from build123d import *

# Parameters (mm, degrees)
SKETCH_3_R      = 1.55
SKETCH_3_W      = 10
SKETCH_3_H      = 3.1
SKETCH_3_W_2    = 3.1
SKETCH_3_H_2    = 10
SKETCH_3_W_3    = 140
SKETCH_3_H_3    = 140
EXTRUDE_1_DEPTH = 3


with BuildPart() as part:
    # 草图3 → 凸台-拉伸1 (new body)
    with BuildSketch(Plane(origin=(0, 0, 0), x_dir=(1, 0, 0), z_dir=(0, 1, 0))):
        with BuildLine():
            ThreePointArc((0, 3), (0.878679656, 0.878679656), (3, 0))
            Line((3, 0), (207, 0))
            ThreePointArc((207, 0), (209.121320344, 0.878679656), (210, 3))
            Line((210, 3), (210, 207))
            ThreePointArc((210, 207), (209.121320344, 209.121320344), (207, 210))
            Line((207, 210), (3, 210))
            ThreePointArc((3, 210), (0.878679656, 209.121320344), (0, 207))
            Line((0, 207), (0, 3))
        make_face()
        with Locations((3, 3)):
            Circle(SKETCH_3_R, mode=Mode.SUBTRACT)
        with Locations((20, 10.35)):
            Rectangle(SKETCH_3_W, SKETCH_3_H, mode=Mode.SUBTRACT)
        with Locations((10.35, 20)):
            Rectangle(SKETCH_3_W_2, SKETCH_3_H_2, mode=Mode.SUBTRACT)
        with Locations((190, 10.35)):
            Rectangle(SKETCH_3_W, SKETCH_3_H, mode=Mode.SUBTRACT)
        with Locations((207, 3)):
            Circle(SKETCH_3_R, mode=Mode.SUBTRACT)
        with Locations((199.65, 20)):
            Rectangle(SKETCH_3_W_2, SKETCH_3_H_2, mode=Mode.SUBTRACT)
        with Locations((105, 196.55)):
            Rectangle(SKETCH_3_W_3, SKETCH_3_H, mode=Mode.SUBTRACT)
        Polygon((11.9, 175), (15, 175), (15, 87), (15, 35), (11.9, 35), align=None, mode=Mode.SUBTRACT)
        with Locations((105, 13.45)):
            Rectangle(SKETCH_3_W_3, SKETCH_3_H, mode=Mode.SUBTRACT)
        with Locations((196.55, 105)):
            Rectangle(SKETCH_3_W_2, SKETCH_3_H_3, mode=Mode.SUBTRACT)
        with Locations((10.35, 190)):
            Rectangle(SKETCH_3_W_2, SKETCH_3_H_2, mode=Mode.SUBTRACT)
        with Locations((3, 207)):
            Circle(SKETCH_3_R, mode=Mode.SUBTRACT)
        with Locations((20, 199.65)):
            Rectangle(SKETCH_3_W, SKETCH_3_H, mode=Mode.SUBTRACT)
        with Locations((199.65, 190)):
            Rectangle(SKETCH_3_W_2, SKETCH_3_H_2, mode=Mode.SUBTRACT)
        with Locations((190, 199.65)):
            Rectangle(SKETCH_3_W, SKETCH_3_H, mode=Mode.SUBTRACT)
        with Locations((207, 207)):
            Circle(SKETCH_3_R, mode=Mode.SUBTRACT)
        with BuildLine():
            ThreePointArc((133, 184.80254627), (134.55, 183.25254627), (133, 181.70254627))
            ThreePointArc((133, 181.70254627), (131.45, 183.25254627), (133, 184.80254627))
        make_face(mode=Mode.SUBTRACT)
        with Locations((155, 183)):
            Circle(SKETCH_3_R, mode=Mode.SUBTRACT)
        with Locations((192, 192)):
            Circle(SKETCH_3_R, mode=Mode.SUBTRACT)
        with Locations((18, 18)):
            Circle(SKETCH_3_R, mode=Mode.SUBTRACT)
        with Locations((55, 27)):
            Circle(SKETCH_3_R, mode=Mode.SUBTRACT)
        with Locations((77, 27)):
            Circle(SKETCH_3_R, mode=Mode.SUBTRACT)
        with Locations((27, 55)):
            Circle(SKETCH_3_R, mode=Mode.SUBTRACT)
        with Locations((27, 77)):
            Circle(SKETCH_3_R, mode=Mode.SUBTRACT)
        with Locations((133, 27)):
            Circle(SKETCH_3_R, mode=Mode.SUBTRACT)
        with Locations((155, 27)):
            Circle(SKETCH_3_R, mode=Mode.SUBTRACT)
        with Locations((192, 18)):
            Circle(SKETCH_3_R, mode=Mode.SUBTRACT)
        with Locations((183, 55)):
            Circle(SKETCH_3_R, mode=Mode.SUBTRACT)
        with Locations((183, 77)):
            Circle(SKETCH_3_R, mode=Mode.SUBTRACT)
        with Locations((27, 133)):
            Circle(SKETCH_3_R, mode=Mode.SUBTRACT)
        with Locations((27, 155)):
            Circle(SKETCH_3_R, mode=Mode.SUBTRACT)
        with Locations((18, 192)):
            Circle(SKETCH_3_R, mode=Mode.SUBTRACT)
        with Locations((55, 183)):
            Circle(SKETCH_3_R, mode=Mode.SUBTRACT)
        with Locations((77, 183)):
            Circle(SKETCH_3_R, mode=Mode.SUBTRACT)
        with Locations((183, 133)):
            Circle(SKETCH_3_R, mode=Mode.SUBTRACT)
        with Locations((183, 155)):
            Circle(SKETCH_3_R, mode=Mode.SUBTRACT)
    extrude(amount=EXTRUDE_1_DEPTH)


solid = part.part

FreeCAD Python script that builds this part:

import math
import FreeCAD as App
import Part
import Sketcher

V = App.Vector
Q = App.Units.Quantity

doc = App.newDocument("Part")
body = doc.addObject("PartDesign::Body", "Body")

# Sketch on XZ plane
sketch1 = body.newObject("Sketcher::SketchObject", "Sketch")
sketch1.AttachmentSupport = (doc.getObject("XZ_Plane"), [""])
sketch1.MapMode = "FlatFace"
sketch1.addGeometry([
    Part.ArcOfCircle(Part.Circle(V(3, -3, 0), V(0, 0, 1), 3), math.radians(90), math.radians(180)),  # 0
    Part.LineSegment(V(3, 0, 0), V(207, 0, 0)),  # 1
    Part.ArcOfCircle(Part.Circle(V(207, -3, 0), V(0, 0, 1), 3), math.radians(0), math.radians(90)),  # 2
    Part.LineSegment(V(210, -3, 0), V(210, -207, 0)),  # 3
    Part.ArcOfCircle(Part.Circle(V(207, -207, 0), V(0, 0, 1), 3), math.radians(-90), math.radians(0)),  # 4
    Part.LineSegment(V(207, -210, 0), V(3, -210, 0)),  # 5
    Part.ArcOfCircle(Part.Circle(V(3, -207, 0), V(0, 0, 1), 3), math.radians(180), math.radians(270)),  # 6
    Part.LineSegment(V(0, -207, 0), V(0, -3, 0)),  # 7
    Part.Circle(V(3, -3, 0), V(0, 0, 1), 1.6),  # 8
    Part.LineSegment(V(25, -8.8, 0), V(15, -8.8, 0)),  # 9
    Part.LineSegment(V(15, -8.8, 0), V(15, -11.9, 0)),  # 10
    Part.LineSegment(V(15, -11.9, 0), V(25, -11.9, 0)),  # 11
    Part.LineSegment(V(25, -11.9, 0), V(25, -8.8, 0)),  # 12
    Part.LineSegment(V(11.9, -15, 0), V(8.8, -15, 0)),  # 13
    Part.LineSegment(V(8.8, -15, 0), V(8.8, -25, 0)),  # 14
    Part.LineSegment(V(8.8, -25, 0), V(11.9, -25, 0)),  # 15
    Part.LineSegment(V(11.9, -25, 0), V(11.9, -15, 0)),  # 16
    Part.Circle(V(18, -18, 0), V(0, 0, 1), 1.6),  # 17
    Part.Circle(V(55, -27, 0), V(0, 0, 1), 1.6),  # 18
    Part.Circle(V(77, -27, 0), V(0, 0, 1), 1.6),  # 19
    Part.LineSegment(V(175, -11.9, 0), V(35, -11.9, 0)),  # 20
    Part.LineSegment(V(35, -11.9, 0), V(35, -15, 0)),  # 21
    Part.LineSegment(V(35, -15, 0), V(175, -15, 0)),  # 22
    Part.LineSegment(V(175, -15, 0), V(175, -11.9, 0)),  # 23
    Part.Circle(V(27, -55, 0), V(0, 0, 1), 1.6),  # 24
    Part.Circle(V(27, -77, 0), V(0, 0, 1), 1.6),  # 25
    Part.Circle(V(133, -27, 0), V(0, 0, 1), 1.6),  # 26
    Part.Circle(V(155, -27, 0), V(0, 0, 1), 1.6),  # 27
    Part.LineSegment(V(195, -8.8, 0), V(185, -8.8, 0)),  # 28
    Part.LineSegment(V(185, -8.8, 0), V(185, -11.9, 0)),  # 29
    Part.LineSegment(V(185, -11.9, 0), V(195, -11.9, 0)),  # 30
    Part.LineSegment(V(195, -11.9, 0), V(195, -8.8, 0)),  # 31
    Part.Circle(V(207, -3, 0), V(0, 0, 1), 1.6),  # 32
    Part.Circle(V(192, -18, 0), V(0, 0, 1), 1.6),  # 33
    Part.LineSegment(V(201.2, -15, 0), V(198.1, -15, 0)),  # 34
    Part.LineSegment(V(198.1, -15, 0), V(198.1, -25, 0)),  # 35
    Part.LineSegment(V(198.1, -25, 0), V(201.2, -25, 0)),  # 36
    Part.LineSegment(V(201.2, -25, 0), V(201.2, -15, 0)),  # 37
    Part.Circle(V(183, -55, 0), V(0, 0, 1), 1.6),  # 38
    Part.Circle(V(183, -77, 0), V(0, 0, 1), 1.6),  # 39
    Part.LineSegment(V(11.9, -35, 0), V(11.9, -175, 0)),  # 40
    Part.LineSegment(V(11.9, -175, 0), V(15, -175, 0)),  # 41
    Part.LineSegment(V(15, -175, 0), V(15, -35, 0)),  # 42
    Part.LineSegment(V(15, -35, 0), V(11.9, -35, 0)),  # 43
    Part.Circle(V(27, -133, 0), V(0, 0, 1), 1.6),  # 44
    Part.Circle(V(27, -155, 0), V(0, 0, 1), 1.6),  # 45
    Part.LineSegment(V(11.9, -185, 0), V(8.8, -185, 0)),  # 46
    Part.LineSegment(V(8.8, -185, 0), V(8.8, -195, 0)),  # 47
    Part.LineSegment(V(8.8, -195, 0), V(11.9, -195, 0)),  # 48
    Part.LineSegment(V(11.9, -195, 0), V(11.9, -185, 0)),  # 49
    Part.Circle(V(18, -192, 0), V(0, 0, 1), 1.6),  # 50
    Part.Circle(V(3, -207, 0), V(0, 0, 1), 1.6),  # 51
    Part.LineSegment(V(25, -198.1, 0), V(15, -198.1, 0)),  # 52
    Part.LineSegment(V(15, -198.1, 0), V(15, -201.2, 0)),  # 53
    Part.LineSegment(V(15, -201.2, 0), V(25, -201.2, 0)),  # 54
    Part.LineSegment(V(25, -201.2, 0), V(25, -198.1, 0)),  # 55
    Part.Circle(V(55, -183, 0), V(0, 0, 1), 1.6),  # 56
    Part.Circle(V(77, -183, 0), V(0, 0, 1), 1.6),  # 57
    Part.LineSegment(V(175, -195, 0), V(35, -195, 0)),  # 58
    Part.LineSegment(V(35, -195, 0), V(35, -198.1, 0)),  # 59
    Part.LineSegment(V(35, -198.1, 0), V(175, -198.1, 0)),  # 60
    Part.LineSegment(V(175, -198.1, 0), V(175, -195, 0)),  # 61
    Part.LineSegment(V(198.1, -35, 0), V(195, -35, 0)),  # 62
    Part.LineSegment(V(195, -35, 0), V(195, -175, 0)),  # 63
    Part.LineSegment(V(195, -175, 0), V(198.1, -175, 0)),  # 64
    Part.LineSegment(V(198.1, -175, 0), V(198.1, -35, 0)),  # 65
    Part.Circle(V(183, -133, 0), V(0, 0, 1), 1.6),  # 66
    Part.Circle(V(183, -155, 0), V(0, 0, 1), 1.6),  # 67
    Part.Circle(V(133, -183.3, 0), V(0, 0, 1), 1.6),  # 68
    Part.Circle(V(155, -183, 0), V(0, 0, 1), 1.6),  # 69
    Part.Circle(V(192, -192, 0), V(0, 0, 1), 1.6),  # 70
    Part.LineSegment(V(201.2, -185, 0), V(198.1, -185, 0)),  # 71
    Part.LineSegment(V(198.1, -185, 0), V(198.1, -195, 0)),  # 72
    Part.LineSegment(V(198.1, -195, 0), V(201.2, -195, 0)),  # 73
    Part.LineSegment(V(201.2, -195, 0), V(201.2, -185, 0)),  # 74
    Part.LineSegment(V(195, -198.1, 0), V(185, -198.1, 0)),  # 75
    Part.LineSegment(V(185, -198.1, 0), V(185, -201.2, 0)),  # 76
    Part.LineSegment(V(185, -201.2, 0), V(195, -201.2, 0)),  # 77
    Part.LineSegment(V(195, -201.2, 0), V(195, -198.1, 0)),  # 78
    Part.Circle(V(207, -207, 0), V(0, 0, 1), 1.6),  # 79
], False)
sketch1.addConstraint([
    Sketcher.Constraint("Tangent", 0, 1, 1, 1),
    Sketcher.Constraint("Tangent", 1, 2, 2, 2),
    Sketcher.Constraint("Tangent", 2, 1, 3, 1),
    Sketcher.Constraint("Tangent", 3, 2, 4, 2),
    Sketcher.Constraint("Tangent", 4, 1, 5, 1),
    Sketcher.Constraint("Tangent", 5, 2, 6, 2),
    Sketcher.Constraint("Tangent", 6, 1, 7, 1),
    Sketcher.Constraint("Tangent", 7, 2, 0, 2),
    Sketcher.Constraint("Coincident", 9, 2, 10, 1),
    Sketcher.Constraint("Coincident", 10, 2, 11, 1),
    Sketcher.Constraint("Coincident", 11, 2, 12, 1),
    Sketcher.Constraint("Coincident", 12, 2, 9, 1),
    Sketcher.Constraint("Coincident", 13, 2, 14, 1),
    Sketcher.Constraint("Coincident", 14, 2, 15, 1),
    Sketcher.Constraint("Coincident", 15, 2, 16, 1),
    Sketcher.Constraint("Coincident", 16, 2, 13, 1),
    Sketcher.Constraint("Coincident", 20, 2, 21, 1),
    Sketcher.Constraint("Coincident", 21, 2, 22, 1),
    Sketcher.Constraint("Coincident", 22, 2, 23, 1),
    Sketcher.Constraint("Coincident", 23, 2, 20, 1),
    Sketcher.Constraint("Coincident", 28, 2, 29, 1),
    Sketcher.Constraint("Coincident", 29, 2, 30, 1),
    Sketcher.Constraint("Coincident", 30, 2, 31, 1),
    Sketcher.Constraint("Coincident", 31, 2, 28, 1),
    Sketcher.Constraint("Coincident", 34, 2, 35, 1),
    Sketcher.Constraint("Coincident", 35, 2, 36, 1),
    Sketcher.Constraint("Coincident", 36, 2, 37, 1),
    Sketcher.Constraint("Coincident", 37, 2, 34, 1),
    Sketcher.Constraint("Coincident", 40, 2, 41, 1),
    Sketcher.Constraint("Coincident", 41, 2, 42, 1),
    Sketcher.Constraint("Coincident", 42, 2, 43, 1),
    Sketcher.Constraint("Coincident", 43, 2, 40, 1),
    Sketcher.Constraint("Coincident", 46, 2, 47, 1),
    Sketcher.Constraint("Coincident", 47, 2, 48, 1),
    Sketcher.Constraint("Coincident", 48, 2, 49, 1),
    Sketcher.Constraint("Coincident", 49, 2, 46, 1),
    Sketcher.Constraint("Coincident", 52, 2, 53, 1),
    Sketcher.Constraint("Coincident", 53, 2, 54, 1),
    Sketcher.Constraint("Coincident", 54, 2, 55, 1),
    Sketcher.Constraint("Coincident", 55, 2, 52, 1),
    Sketcher.Constraint("Coincident", 58, 2, 59, 1),
    Sketcher.Constraint("Coincident", 59, 2, 60, 1),
    Sketcher.Constraint("Coincident", 60, 2, 61, 1),
    Sketcher.Constraint("Coincident", 61, 2, 58, 1),
    Sketcher.Constraint("Coincident", 62, 2, 63, 1),
    Sketcher.Constraint("Coincident", 63, 2, 64, 1),
    Sketcher.Constraint("Coincident", 64, 2, 65, 1),
    Sketcher.Constraint("Coincident", 65, 2, 62, 1),
    Sketcher.Constraint("Coincident", 71, 2, 72, 1),
    Sketcher.Constraint("Coincident", 72, 2, 73, 1),
    Sketcher.Constraint("Coincident", 73, 2, 74, 1),
    Sketcher.Constraint("Coincident", 74, 2, 71, 1),
    Sketcher.Constraint("Coincident", 75, 2, 76, 1),
    Sketcher.Constraint("Coincident", 76, 2, 77, 1),
    Sketcher.Constraint("Coincident", 77, 2, 78, 1),
    Sketcher.Constraint("Coincident", 78, 2, 75, 1),
    Sketcher.Constraint("Horizontal", 1),
    Sketcher.Constraint("Vertical", 3),
    Sketcher.Constraint("Horizontal", 5),
    Sketcher.Constraint("Vertical", 7),
    Sketcher.Constraint("Horizontal", 9),
    Sketcher.Constraint("Vertical", 10),
    Sketcher.Constraint("Horizontal", 11),
    Sketcher.Constraint("Vertical", 12),
    Sketcher.Constraint("Horizontal", 13),
    Sketcher.Constraint("Vertical", 14),
    Sketcher.Constraint("Horizontal", 15),
    Sketcher.Constraint("Vertical", 16),
    Sketcher.Constraint("Horizontal", 20),
    Sketcher.Constraint("Vertical", 21),
    Sketcher.Constraint("Horizontal", 22),
    Sketcher.Constraint("Vertical", 23),
    Sketcher.Constraint("Horizontal", 28),
    Sketcher.Constraint("Vertical", 29),
    Sketcher.Constraint("Horizontal", 30),
    Sketcher.Constraint("Vertical", 31),
    Sketcher.Constraint("Horizontal", 34),
    Sketcher.Constraint("Vertical", 35),
    Sketcher.Constraint("Horizontal", 36),
    Sketcher.Constraint("Vertical", 37),
    Sketcher.Constraint("Vertical", 40),
    Sketcher.Constraint("Horizontal", 41),
    Sketcher.Constraint("Vertical", 42),
    Sketcher.Constraint("Horizontal", 43),
    Sketcher.Constraint("Horizontal", 46),
    Sketcher.Constraint("Vertical", 47),
    Sketcher.Constraint("Horizontal", 48),
    Sketcher.Constraint("Vertical", 49),
    Sketcher.Constraint("Horizontal", 52),
    Sketcher.Constraint("Vertical", 53),
    Sketcher.Constraint("Horizontal", 54),
    Sketcher.Constraint("Vertical", 55),
    Sketcher.Constraint("Horizontal", 58),
    Sketcher.Constraint("Vertical", 59),
    Sketcher.Constraint("Horizontal", 60),
    Sketcher.Constraint("Vertical", 61),
    Sketcher.Constraint("Horizontal", 62),
    Sketcher.Constraint("Vertical", 63),
    Sketcher.Constraint("Horizontal", 64),
    Sketcher.Constraint("Vertical", 65),
    Sketcher.Constraint("Horizontal", 71),
    Sketcher.Constraint("Vertical", 72),
    Sketcher.Constraint("Horizontal", 73),
    Sketcher.Constraint("Vertical", 74),
    Sketcher.Constraint("Horizontal", 75),
    Sketcher.Constraint("Vertical", 76),
    Sketcher.Constraint("Horizontal", 77),
    Sketcher.Constraint("Vertical", 78),
    Sketcher.Constraint("Coincident", 8, 3, 0, 3),
    Sketcher.Constraint("Coincident", 32, 3, 2, 3),
    Sketcher.Constraint("Coincident", 51, 3, 6, 3),
    Sketcher.Constraint("Coincident", 79, 3, 4, 3),
    Sketcher.Constraint("Equal", 0, 2),
    Sketcher.Constraint("Equal", 2, 4),
    Sketcher.Constraint("Equal", 4, 6),
    Sketcher.Constraint("Equal", 8, 17),
    Sketcher.Constraint("Equal", 17, 18),
    Sketcher.Constraint("Equal", 18, 19),
    Sketcher.Constraint("Equal", 19, 24),
    Sketcher.Constraint("Equal", 24, 25),
    Sketcher.Constraint("Equal", 25, 26),
    Sketcher.Constraint("Equal", 26, 27),
    Sketcher.Constraint("Equal", 27, 32),
    Sketcher.Constraint("Equal", 32, 33),
    Sketcher.Constraint("Equal", 33, 38),
    Sketcher.Constraint("Equal", 38, 39),
    Sketcher.Constraint("Equal", 39, 44),
    Sketcher.Constraint("Equal", 44, 45),
    Sketcher.Constraint("Equal", 45, 50),
    Sketcher.Constraint("Equal", 50, 51),
    Sketcher.Constraint("Equal", 51, 56),
    Sketcher.Constraint("Equal", 56, 57),
    Sketcher.Constraint("Equal", 57, 66),
    Sketcher.Constraint("Equal", 66, 67),
    Sketcher.Constraint("Equal", 67, 68),
    Sketcher.Constraint("Equal", 68, 69),
    Sketcher.Constraint("Equal", 69, 70),
    Sketcher.Constraint("Equal", 70, 79),
    Sketcher.Constraint("PointOnObject", 0, 1, -1),
    Sketcher.Constraint("PointOnObject", 6, 1, -2),
    Sketcher.Constraint("Horizontal", 18, 3, 19, 3),
    Sketcher.Constraint("Horizontal", 19, 3, 26, 3),
    Sketcher.Constraint("Horizontal", 26, 3, 27, 3),
    Sketcher.Constraint("Horizontal", 17, 3, 33, 3),
    Sketcher.Constraint("Horizontal", 24, 3, 38, 3),
    Sketcher.Constraint("Horizontal", 25, 3, 39, 3),
    Sketcher.Constraint("Horizontal", 56, 3, 57, 3),
    Sketcher.Constraint("Horizontal", 44, 3, 66, 3),
    Sketcher.Constraint("Horizontal", 45, 3, 67, 3),
    Sketcher.Constraint("Horizontal", 57, 3, 69, 3),
    Sketcher.Constraint("Horizontal", 50, 3, 70, 3),
    Sketcher.Constraint("Horizontal", 11, 2, 20, 2),
    Sketcher.Constraint("Horizontal", 16, 2, 21, 2),
    Sketcher.Constraint("Horizontal", 12, 2, 28, 2),
    Sketcher.Constraint("Horizontal", 23, 2, 29, 2),
    Sketcher.Constraint("Horizontal", 22, 2, 34, 2),
    Sketcher.Constraint("Horizontal", 15, 2, 35, 2),
    Sketcher.Constraint("Horizontal", 48, 2, 58, 2),
    Sketcher.Constraint("Horizontal", 55, 2, 59, 2),
    Sketcher.Constraint("Horizontal", 43, 2, 62, 2),
    Sketcher.Constraint("Horizontal", 41, 2, 63, 2),
    Sketcher.Constraint("Horizontal", 49, 2, 71, 2),
    Sketcher.Constraint("Horizontal", 61, 2, 72, 2),
    Sketcher.Constraint("Horizontal", 60, 2, 75, 2),
    Sketcher.Constraint("Horizontal", 54, 2, 76, 2),
    Sketcher.Constraint("Vertical", 24, 3, 25, 3),
    Sketcher.Constraint("Vertical", 38, 3, 39, 3),
    Sketcher.Constraint("Vertical", 25, 3, 44, 3),
    Sketcher.Constraint("Vertical", 44, 3, 45, 3),
    Sketcher.Constraint("Vertical", 17, 3, 50, 3),
    Sketcher.Constraint("Vertical", 18, 3, 56, 3),
    Sketcher.Constraint("Vertical", 19, 3, 57, 3),
    Sketcher.Constraint("Vertical", 39, 3, 66, 3),
    Sketcher.Constraint("Vertical", 66, 3, 67, 3),
    Sketcher.Constraint("Vertical", 26, 3, 68, 3),
    Sketcher.Constraint("Vertical", 27, 3, 69, 3),
    Sketcher.Constraint("Vertical", 33, 3, 70, 3),
    Sketcher.Constraint("Vertical", 16, 2, 40, 2),
    Sketcher.Constraint("Vertical", 10, 2, 41, 2),
    Sketcher.Constraint("Vertical", 14, 2, 46, 2),
    Sketcher.Constraint("Vertical", 43, 2, 48, 2),
    Sketcher.Constraint("Vertical", 42, 2, 52, 2),
    Sketcher.Constraint("Vertical", 12, 2, 54, 2),
    Sketcher.Constraint("Vertical", 21, 2, 58, 2),
    Sketcher.Constraint("Vertical", 23, 2, 60, 2),
    Sketcher.Constraint("Vertical", 31, 2, 62, 2),
    Sketcher.Constraint("Vertical", 35, 2, 64, 2),
    Sketcher.Constraint("Vertical", 65, 2, 71, 2),
    Sketcher.Constraint("Vertical", 37, 2, 73, 2),
    Sketcher.Constraint("Vertical", 29, 2, 75, 2),
    Sketcher.Constraint("Vertical", 63, 2, 77, 2),
    Sketcher.Constraint("Equal", 11, 28),
    Sketcher.Constraint("Equal", 15, 34),
    Sketcher.Constraint("Equal", 36, 41),
    Sketcher.Constraint("Equal", 48, 62),
    Sketcher.Constraint("Equal", 5, 3),
    Sketcher.Constraint("Equal", 73, 10),
    Sketcher.Constraint("Equal", 77, 14),
    Sketcher.Constraint("Equal", 12, 21),
    Sketcher.Constraint("Equal", 60, 40),
    Sketcher.Constraint("Equal", 37, 47),
    Sketcher.Constraint("Equal", 31, 53),
    Sketcher.Constraint("Equal", 55, 59),
    Sketcher.Constraint("Radius", 0, Q("3 mm")),
    Sketcher.Constraint("Diameter", 8, Q("3.1 mm")),
    Sketcher.Constraint("DistanceX", 1, 1, 1, 2, Q("204 mm")),
    Sketcher.Constraint("DistanceX", 9, 2, 9, 1, Q("10 mm")),
    Sketcher.Constraint("DistanceX", 20, 2, 20, 1, Q("140 mm")),
    Sketcher.Constraint("DistanceX", 13, 2, 13, 1, Q("3.1 mm")),
    Sketcher.Constraint("DistanceX", -1, 1, 17, 3, Q("18 mm")),
    Sketcher.Constraint("DistanceY", 17, 3, -1, 1, Q("18 mm")),
    Sketcher.Constraint("DistanceX", -1, 1, 18, 3, Q("55 mm")),
    Sketcher.Constraint("DistanceY", 18, 3, -1, 1, Q("27 mm")),
    Sketcher.Constraint("DistanceX", -1, 1, 19, 3, Q("77 mm")),
    Sketcher.Constraint("DistanceX", -1, 1, 24, 3, Q("27 mm")),
    Sketcher.Constraint("DistanceY", 24, 3, -1, 1, Q("55 mm")),
    Sketcher.Constraint("DistanceY", 25, 3, -1, 1, Q("77 mm")),
    Sketcher.Constraint("DistanceX", -1, 1, 26, 3, Q("133 mm")),
    Sketcher.Constraint("DistanceX", -1, 1, 27, 3, Q("155 mm")),
    Sketcher.Constraint("DistanceX", -1, 1, 33, 3, Q("192 mm")),
    Sketcher.Constraint("DistanceX", -1, 1, 38, 3, Q("183 mm")),
    Sketcher.Constraint("DistanceY", 44, 3, -1, 1, Q("133 mm")),
    Sketcher.Constraint("DistanceY", 45, 3, -1, 1, Q("155 mm")),
    Sketcher.Constraint("DistanceY", 50, 3, -1, 1, Q("192 mm")),
    Sketcher.Constraint("DistanceY", 56, 3, -1, 1, Q("183 mm")),
    Sketcher.Constraint("DistanceX", -1, 1, 9, 2, Q("15 mm")),
    Sketcher.Constraint("DistanceY", 13, 2, -1, 1, Q("15 mm")),
    Sketcher.Constraint("DistanceX", -1, 1, 20, 2, Q("35 mm")),
    Sketcher.Constraint("DistanceX", -1, 1, 28, 2, Q("185 mm")),
    Sketcher.Constraint("DistanceY", 40, 2, -1, 1, Q("175 mm")),
    Sketcher.Constraint("DistanceY", 46, 2, -1, 1, Q("185 mm")),
    Sketcher.Constraint("DistanceY", 68, 3, -1, 1, Q("183.252546 mm")),
])
pad1 = body.newObject("PartDesign::Pad", "Pad")
pad1.Profile = sketch1
pad1.Length = 3
pad1.Reversed = True

doc.recompute()
